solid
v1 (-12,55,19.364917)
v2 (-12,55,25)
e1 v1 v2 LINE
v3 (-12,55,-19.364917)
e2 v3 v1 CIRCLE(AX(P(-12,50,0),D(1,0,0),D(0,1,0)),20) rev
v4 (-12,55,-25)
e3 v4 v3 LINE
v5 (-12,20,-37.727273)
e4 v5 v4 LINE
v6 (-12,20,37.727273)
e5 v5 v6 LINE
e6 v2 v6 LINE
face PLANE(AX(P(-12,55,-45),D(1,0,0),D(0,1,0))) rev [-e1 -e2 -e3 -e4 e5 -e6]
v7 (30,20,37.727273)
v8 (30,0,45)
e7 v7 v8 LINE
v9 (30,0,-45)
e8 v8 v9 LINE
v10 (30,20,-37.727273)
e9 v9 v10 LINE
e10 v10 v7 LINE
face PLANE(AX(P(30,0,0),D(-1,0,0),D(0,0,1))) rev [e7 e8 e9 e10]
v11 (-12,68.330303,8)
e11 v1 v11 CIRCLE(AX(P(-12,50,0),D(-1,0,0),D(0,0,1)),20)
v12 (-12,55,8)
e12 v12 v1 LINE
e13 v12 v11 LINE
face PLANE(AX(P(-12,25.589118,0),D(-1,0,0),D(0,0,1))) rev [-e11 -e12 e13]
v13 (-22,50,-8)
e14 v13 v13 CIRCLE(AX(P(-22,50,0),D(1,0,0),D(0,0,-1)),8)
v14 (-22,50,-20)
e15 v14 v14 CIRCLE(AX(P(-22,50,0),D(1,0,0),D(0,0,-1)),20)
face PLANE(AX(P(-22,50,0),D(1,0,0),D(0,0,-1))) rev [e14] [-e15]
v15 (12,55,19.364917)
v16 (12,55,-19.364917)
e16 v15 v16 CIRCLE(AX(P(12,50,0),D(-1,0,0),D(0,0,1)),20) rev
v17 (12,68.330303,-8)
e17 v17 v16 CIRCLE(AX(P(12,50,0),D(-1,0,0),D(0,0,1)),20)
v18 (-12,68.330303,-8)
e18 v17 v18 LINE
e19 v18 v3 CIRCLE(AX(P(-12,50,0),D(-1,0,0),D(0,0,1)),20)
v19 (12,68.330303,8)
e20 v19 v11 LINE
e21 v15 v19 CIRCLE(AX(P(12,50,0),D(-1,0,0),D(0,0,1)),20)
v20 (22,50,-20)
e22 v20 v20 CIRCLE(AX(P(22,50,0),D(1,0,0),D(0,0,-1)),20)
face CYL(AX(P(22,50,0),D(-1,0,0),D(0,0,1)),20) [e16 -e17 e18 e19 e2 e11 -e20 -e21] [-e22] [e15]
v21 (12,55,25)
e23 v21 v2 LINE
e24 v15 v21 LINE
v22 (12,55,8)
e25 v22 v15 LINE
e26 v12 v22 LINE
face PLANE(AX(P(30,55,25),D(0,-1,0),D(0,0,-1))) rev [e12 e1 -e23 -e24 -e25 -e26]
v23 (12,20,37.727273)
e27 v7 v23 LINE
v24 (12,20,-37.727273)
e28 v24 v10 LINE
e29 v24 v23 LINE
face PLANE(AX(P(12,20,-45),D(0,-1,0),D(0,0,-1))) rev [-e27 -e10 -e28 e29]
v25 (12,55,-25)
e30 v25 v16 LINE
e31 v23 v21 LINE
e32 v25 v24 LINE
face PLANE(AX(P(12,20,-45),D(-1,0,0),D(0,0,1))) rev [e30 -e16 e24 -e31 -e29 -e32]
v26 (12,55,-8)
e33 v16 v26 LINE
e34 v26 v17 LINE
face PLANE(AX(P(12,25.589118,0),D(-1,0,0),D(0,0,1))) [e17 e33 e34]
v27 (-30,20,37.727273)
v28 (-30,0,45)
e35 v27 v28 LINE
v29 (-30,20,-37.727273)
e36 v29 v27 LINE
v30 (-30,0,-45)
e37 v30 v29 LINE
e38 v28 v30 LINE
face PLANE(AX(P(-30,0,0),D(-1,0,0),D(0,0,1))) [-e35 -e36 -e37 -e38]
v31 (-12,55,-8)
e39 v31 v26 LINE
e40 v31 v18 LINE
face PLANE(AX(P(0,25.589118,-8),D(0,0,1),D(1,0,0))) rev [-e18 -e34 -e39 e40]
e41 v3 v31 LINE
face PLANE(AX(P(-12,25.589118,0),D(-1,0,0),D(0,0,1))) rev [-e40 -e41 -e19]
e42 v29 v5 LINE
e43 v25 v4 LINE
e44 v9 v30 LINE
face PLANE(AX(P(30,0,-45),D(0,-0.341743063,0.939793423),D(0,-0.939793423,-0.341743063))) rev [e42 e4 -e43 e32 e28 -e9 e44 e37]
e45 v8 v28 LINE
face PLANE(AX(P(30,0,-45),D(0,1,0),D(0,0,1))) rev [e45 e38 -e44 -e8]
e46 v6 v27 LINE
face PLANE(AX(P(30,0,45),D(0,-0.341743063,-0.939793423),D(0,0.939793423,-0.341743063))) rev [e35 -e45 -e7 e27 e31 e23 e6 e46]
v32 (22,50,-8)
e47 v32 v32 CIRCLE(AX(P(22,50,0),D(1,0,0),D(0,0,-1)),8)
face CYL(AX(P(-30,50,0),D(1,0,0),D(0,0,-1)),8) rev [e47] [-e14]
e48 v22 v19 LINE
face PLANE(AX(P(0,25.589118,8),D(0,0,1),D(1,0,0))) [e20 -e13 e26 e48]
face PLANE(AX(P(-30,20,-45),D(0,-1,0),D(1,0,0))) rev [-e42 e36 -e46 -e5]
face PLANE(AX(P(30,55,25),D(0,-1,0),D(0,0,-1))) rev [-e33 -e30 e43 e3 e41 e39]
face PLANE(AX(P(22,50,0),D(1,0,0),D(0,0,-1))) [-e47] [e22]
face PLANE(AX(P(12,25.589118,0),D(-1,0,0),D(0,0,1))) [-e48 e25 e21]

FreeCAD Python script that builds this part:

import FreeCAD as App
import Part
import Sketcher


def add_polygon(sketch, points):
    """Adds a closed chain of lines whose ends are joined by coincident constraints."""
    first, n = sketch.GeometryCount, len(points)
    for a, b in zip(points, points[1:] + points[:1]):
        sketch.addGeometry(Part.LineSegment(App.Vector(*a, 0), App.Vector(*b, 0)), False)
    for i in range(n):
        sketch.addConstraint(Sketcher.Constraint("Coincident", first + i, 2, first + (i + 1) % n, 1))

doc = App.newDocument("Part")
body = doc.addObject("PartDesign::Body", "Body")

# Sketch on YZ plane
sketch1 = doc.addObject("Sketcher::SketchObject", "Sketch")
body.addObject(sketch1)
sketch1.AttachmentSupport = (doc.YZ_Plane, [""])
sketch1.MapMode = "FlatFace"
add_polygon(sketch1, [(0, 45), (0, -45), (55, -25), (55, 25)])  # lines 0-3
sketch1.addConstraint([
    Sketcher.Constraint("Vertical", 0),
    Sketcher.Constraint("Vertical", 2),
    Sketcher.Constraint("Symmetric", 0, 2, 3, 2, -1, 1),
    Sketcher.Constraint("Equal", 1, 3),
    Sketcher.Constraint("DistanceY", 0, 2, 0, 1, 90.0),
    Sketcher.Constraint("DistanceY", 2, 1, 2, 2, 50.0),
    Sketcher.Constraint("DistanceX", -1, 1, 1, 2, 55.0),
])
pad1 = doc.addObject("PartDesign::Pad", "Pad")
body.addObject(pad1)
pad1.Profile = sketch1
pad1.Length = 60
pad1.Midplane = True

# Sketch on XY plane
sketch2 = doc.addObject("Sketcher::SketchObject", "Sketch001")
body.addObject(sketch2)
sketch2.AttachmentSupport = (doc.XY_Plane, [""])
sketch2.MapMode = "FlatFace"
sketch2.AttachmentOffset = App.Placement(App.Vector(0, 0, 45), App.Rotation())
add_polygon(sketch2, [(-30, 55), (-30, 20), (-12, 20), (-12, 55)])  # lines 0-3
add_polygon(sketch2, [(12, 55), (12, 20), (30, 20), (30, 55)])  # lines 4-7
sketch2.addConstraint([
    Sketcher.Constraint("Vertical", 0),
    Sketcher.Constraint("Horizontal", 1),
    Sketcher.Constraint("Vertical", 2),
    Sketcher.Constraint("Horizontal", 3),
    Sketcher.Constraint("Vertical", 4),
    Sketcher.Constraint("Horizontal", 5),
    Sketcher.Constraint("Vertical", 6),
    Sketcher.Constraint("Horizontal", 7),
    Sketcher.Constraint("Symmetric", 1, 2, 4, 2, -2),
    Sketcher.Constraint("Symmetric", 3, 2, 6, 2, -2),
    Sketcher.Constraint("DistanceX", 1, 1, 1, 2, 18.0),
    Sketcher.Constraint("DistanceY", 0, 2, 0, 1, 35.0),
    Sketcher.Constraint("DistanceX", 0, 2, -1, 1, 30.0),
    Sketcher.Constraint("DistanceY", -1, 1, 0, 2, 20.0),
])
pocket1 = doc.addObject("PartDesign::Pocket", "Pocket")
body.addObject(pocket1)
pocket1.Profile = sketch2
pocket1.Type = "ThroughAll"

# Sketch on YZ plane
sketch3 = doc.addObject("Sketcher::SketchObject", "Sketch002")
body.addObject(sketch3)
sketch3.AttachmentSupport = (doc.YZ_Plane, [""])
sketch3.MapMode = "FlatFace"
sketch3.addGeometry(Part.Circle(App.Vector(50, 0, 0), App.Vector(0, 0, 1), 20), False)
sketch3.addConstraint([
    Sketcher.Constraint("PointOnObject", 0, 3, -1),
    Sketcher.Constraint("Diameter", 0, 40.0),
    Sketcher.Constraint("DistanceX", -1, 1, 0, 3, 50.0),
])
pad2 = doc.addObject("PartDesign::Pad", "Pad001")
body.addObject(pad2)
pad2.Profile = sketch3
pad2.Length = 44
pad2.Midplane = True

# Sketch on YZ plane
sketch4 = doc.addObject("Sketcher::SketchObject", "Sketch003")
body.addObject(sketch4)
sketch4.AttachmentSupport = (doc.YZ_Plane, [""])
sketch4.MapMode = "FlatFace"
sketch4.addGeometry(Part.Circle(App.Vector(50, 0, 0), App.Vector(0, 0, 1), 8), False)
sketch4.addConstraint([
    Sketcher.Constraint("PointOnObject", 0, 3, -1),
    Sketcher.Constraint("Diameter", 0, 16.0),
    Sketcher.Constraint("DistanceX", -1, 1, 0, 3, 50.0),
])
pocket2 = doc.addObject("PartDesign::Pocket", "Pocket001")
body.addObject(pocket2)
pocket2.Profile = sketch4
pocket2.Type = "ThroughAll"
pocket2.Midplane = True

# Sketch on XZ plane
sketch5 = doc.addObject("Sketcher::SketchObject", "Sketch004")
body.addObject(sketch5)
sketch5.AttachmentSupport = (doc.XZ_Plane, [""])
sketch5.MapMode = "FlatFace"
sketch5.AttachmentOffset = App.Placement(App.Vector(0, 0, -70), App.Rotation())
add_polygon(sketch5, [(-12, 8), (-12, 25), (12, 25), (12, 8)])  # lines 0-3
add_polygon(sketch5, [(-12, -25), (-12, -8), (12, -8), (12, -25)])  # lines 4-7
sketch5.addConstraint([
    Sketcher.Constraint("Vertical", 0),
    Sketcher.Constraint("Horizontal", 1),
    Sketcher.Constraint("Vertical", 2),
    Sketcher.Constraint("Horizontal", 3),
    Sketcher.Constraint("Vertical", 4),
    Sketcher.Constraint("Horizontal", 5),
    Sketcher.Constraint("Vertical", 6),
    Sketcher.Constraint("Horizontal", 7),
    Sketcher.Constraint("Symmetric", 2, 2, 4, 2, -1, 1),
    Sketcher.Constraint("Symmetric", 0, 2, 6, 2, -1, 1),
    Sketcher.Constraint("Vertical", 3, 2, 4, 2),
    Sketcher.Constraint("DistanceX", 1, 1, 1, 2, 24.0),
    Sketcher.Constraint("DistanceY", 0, 1, 0, 2, 17.0),
    Sketcher.Constraint("DistanceY", -1, 1, 0, 2, 25.0),
])
pocket3 = doc.addObject("PartDesign::Pocket", "Pocket002")
body.addObject(pocket3)
pocket3.Profile = sketch5
pocket3.Length = 15
pocket3.Reversed = True

doc.recompute()
